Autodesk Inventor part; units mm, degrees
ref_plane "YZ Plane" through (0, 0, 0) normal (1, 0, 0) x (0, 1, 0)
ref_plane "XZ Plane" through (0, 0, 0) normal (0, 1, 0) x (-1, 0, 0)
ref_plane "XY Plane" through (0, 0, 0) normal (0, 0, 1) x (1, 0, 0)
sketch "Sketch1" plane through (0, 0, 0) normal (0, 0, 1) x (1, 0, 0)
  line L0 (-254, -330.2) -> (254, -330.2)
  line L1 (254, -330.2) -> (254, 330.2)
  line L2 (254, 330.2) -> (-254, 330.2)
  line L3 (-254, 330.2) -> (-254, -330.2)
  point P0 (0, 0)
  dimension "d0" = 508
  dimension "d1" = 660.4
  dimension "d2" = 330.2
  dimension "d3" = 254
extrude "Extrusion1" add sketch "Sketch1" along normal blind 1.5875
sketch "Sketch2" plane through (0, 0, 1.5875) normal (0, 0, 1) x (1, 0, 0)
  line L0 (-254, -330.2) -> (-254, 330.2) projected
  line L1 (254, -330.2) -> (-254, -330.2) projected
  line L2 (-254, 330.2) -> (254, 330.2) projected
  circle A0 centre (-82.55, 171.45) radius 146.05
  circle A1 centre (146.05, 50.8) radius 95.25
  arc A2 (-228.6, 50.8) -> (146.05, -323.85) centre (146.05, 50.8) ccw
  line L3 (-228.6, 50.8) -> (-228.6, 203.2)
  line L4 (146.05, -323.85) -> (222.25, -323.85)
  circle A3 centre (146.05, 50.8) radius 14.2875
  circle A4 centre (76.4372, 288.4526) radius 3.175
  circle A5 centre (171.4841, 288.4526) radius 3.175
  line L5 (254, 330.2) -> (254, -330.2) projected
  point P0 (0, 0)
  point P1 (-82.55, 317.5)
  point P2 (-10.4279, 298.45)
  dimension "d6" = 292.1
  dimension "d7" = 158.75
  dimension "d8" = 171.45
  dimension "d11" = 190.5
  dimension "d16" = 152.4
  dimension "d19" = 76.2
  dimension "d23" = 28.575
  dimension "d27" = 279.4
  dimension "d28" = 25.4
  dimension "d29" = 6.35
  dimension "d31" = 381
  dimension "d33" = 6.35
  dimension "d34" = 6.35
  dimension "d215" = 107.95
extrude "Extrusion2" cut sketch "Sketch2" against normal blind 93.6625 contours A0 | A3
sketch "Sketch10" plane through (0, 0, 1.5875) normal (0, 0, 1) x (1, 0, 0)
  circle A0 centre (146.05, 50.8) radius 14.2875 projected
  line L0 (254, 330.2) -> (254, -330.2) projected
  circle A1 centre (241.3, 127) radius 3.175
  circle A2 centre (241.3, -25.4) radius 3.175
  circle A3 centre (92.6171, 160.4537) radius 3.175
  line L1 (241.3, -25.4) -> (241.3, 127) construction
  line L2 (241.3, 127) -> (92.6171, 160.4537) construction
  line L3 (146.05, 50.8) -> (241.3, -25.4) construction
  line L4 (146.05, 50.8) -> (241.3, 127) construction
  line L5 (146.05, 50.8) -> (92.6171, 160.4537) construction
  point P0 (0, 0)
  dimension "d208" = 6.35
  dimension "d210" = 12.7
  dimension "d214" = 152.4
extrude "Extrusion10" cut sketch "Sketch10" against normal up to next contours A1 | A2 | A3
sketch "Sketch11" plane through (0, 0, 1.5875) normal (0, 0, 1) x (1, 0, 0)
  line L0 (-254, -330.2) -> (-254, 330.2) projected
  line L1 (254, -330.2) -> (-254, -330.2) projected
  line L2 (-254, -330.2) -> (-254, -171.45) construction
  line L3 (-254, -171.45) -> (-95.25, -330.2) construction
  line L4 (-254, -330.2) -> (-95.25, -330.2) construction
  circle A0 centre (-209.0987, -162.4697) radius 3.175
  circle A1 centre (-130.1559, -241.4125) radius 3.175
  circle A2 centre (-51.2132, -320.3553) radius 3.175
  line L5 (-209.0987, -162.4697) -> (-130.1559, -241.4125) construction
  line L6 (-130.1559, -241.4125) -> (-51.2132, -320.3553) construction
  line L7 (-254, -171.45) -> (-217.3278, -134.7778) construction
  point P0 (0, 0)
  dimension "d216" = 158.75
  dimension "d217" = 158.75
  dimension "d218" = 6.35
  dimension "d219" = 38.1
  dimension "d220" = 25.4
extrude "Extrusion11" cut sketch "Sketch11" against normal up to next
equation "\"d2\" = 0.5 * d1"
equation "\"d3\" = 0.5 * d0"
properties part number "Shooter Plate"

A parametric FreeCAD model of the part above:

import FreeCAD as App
import Part
import Sketcher
from FreeCAD import Vector
Q = App.Units.Quantity

doc = App.newDocument("Part")
params = doc.addObject("Spreadsheet::Sheet", "Params")
for row, (alias, value) in enumerate([
    ("sketch1_width", "20 in"),
    ("sketch1_height", "26 in"),
    ("pad1_length", "0.0625 in"),
    ("sketch2_diameter", "11.5 in"),
    ("sketch2_diameter2", "1.125 in"),
    ("pocket1_length", "3.6875 in"),
    ("sketch3_diameter", "0.25 in"),
    ("pocket2_length", "0.0625 in"),
    ("sketch4_diameter", "0.25 in"),
], start=1):
    params.set(f"A{row}", alias)
    params.set(f"B{row}", "=" + value)
    params.setAlias(f"B{row}", alias)

body = doc.addObject("PartDesign::Body", "Body")

sketch1 = body.newObject("Sketcher::SketchObject", "Sketch")
sketch1.AttachmentSupport = (doc.getObject("XY_Plane"), [""])
sketch1.MapMode = "FlatFace"
sketch1.addGeometry(Part.LineSegment(Vector(-254, 330.2, 0), Vector(-254, -330.2, 0)), False)
sketch1.addGeometry(Part.LineSegment(Vector(-254, -330.2, 0), Vector(254, -330.2, 0)), False)
sketch1.addGeometry(Part.LineSegment(Vector(254, -330.2, 0), Vector(254, 330.2, 0)), False)
sketch1.addGeometry(Part.LineSegment(Vector(254, 330.2, 0), Vector(-254, 330.2, 0)), False)
sketch1.addConstraint(Sketcher.Constraint("Coincident", 0, 2, 1, 1))
sketch1.addConstraint(Sketcher.Constraint("Coincident", 1, 2, 2, 1))
sketch1.addConstraint(Sketcher.Constraint("Coincident", 2, 2, 3, 1))
sketch1.addConstraint(Sketcher.Constraint("Coincident", 3, 2, 0, 1))
sketch1.addConstraint(Sketcher.Constraint("Vertical", 0))
sketch1.addConstraint(Sketcher.Constraint("Horizontal", 1))
sketch1.addConstraint(Sketcher.Constraint("Vertical", 2))
sketch1.addConstraint(Sketcher.Constraint("Horizontal", 3))
sketch1.addConstraint(Sketcher.Constraint("Symmetric", 0, 2, 2, 2, -1, 1))
sketch1.addConstraint(Sketcher.Constraint("DistanceX", 1, 1, 1, 2, Q("20 in")))
sketch1.addConstraint(Sketcher.Constraint("DistanceY", 0, 2, 0, 1, Q("26 in")))
sketch1.setExpression("Constraints[9]", "Params.sketch1_width")
sketch1.setExpression("Constraints[10]", "Params.sketch1_height")
pad1 = body.newObject("PartDesign::Pad", "Pad")
pad1.Profile = sketch1
pad1.setExpression("Length", "Params.pad1_length")

sketch2 = body.newObject("Sketcher::SketchObject", "Sketch001")
sketch2.AttachmentSupport = (doc.getObject("XY_Plane"), [""])
sketch2.MapMode = "FlatFace"
sketch2.AttachmentOffset = App.Placement(Vector(0, 0, 0.0625 * 25.4), App.Rotation())
sketch2.addGeometry(Part.Circle(Vector(-82.55, 171.45, 0), Vector(0, 0, 1), 146.05), False)
sketch2.addGeometry(Part.Circle(Vector(146.05, 50.8, 0), Vector(0, 0, 1), 14.2875), False)
sketch2.addConstraint(Sketcher.Constraint("Diameter", 0, Q("11.5 in")))
sketch2.addConstraint(Sketcher.Constraint("Diameter", 1, Q("1.125 in")))
sketch2.addConstraint(Sketcher.Constraint("DistanceY", -1, 1, 0, 3, Q("6.75 in")))
sketch2.addConstraint(Sketcher.Constraint("DistanceY", -1, 1, 1, 3, Q("2 in")))
sketch2.addConstraint(Sketcher.Constraint("DistanceX", 0, 3, 1, 3, Q("9 in")))
sketch2.addConstraint(Sketcher.Constraint("DistanceX", 0, 3, -1, 1, Q("3.25 in")))
sketch2.setExpression("Constraints[0]", "Params.sketch2_diameter")
sketch2.setExpression("Constraints[1]", "Params.sketch2_diameter2")
pocket1 = body.newObject("PartDesign::Pocket", "Pocket")
pocket1.Profile = sketch2
pocket1.setExpression("Length", "Params.pocket1_length")

sketch3 = body.newObject("Sketcher::SketchObject", "Sketch002")
sketch3.AttachmentSupport = (doc.getObject("XY_Plane"), [""])
sketch3.MapMode = "FlatFace"
sketch3.AttachmentOffset = App.Placement(Vector(0, 0, 0.0625 * 25.4), App.Rotation())
sketch3.addGeometry(Part.Circle(Vector(241.3, 127, 0), Vector(0, 0, 1), 3.175), False)
sketch3.addGeometry(Part.Circle(Vector(241.3, -25.4, 0), Vector(0, 0, 1), 3.175), False)
sketch3.addGeometry(Part.Circle(Vector(92.6171, 160.4537, 0), Vector(0, 0, 1), 3.175), False)
sketch3.addConstraint(Sketcher.Constraint("Equal", 0, 1))
sketch3.addConstraint(Sketcher.Constraint("Equal", 1, 2))
sketch3.addConstraint(Sketcher.Constraint("Vertical", 0, 3, 1, 3))
sketch3.addConstraint(Sketcher.Constraint("Diameter", 0, Q("0.25 in")))
sketch3.addConstraint(Sketcher.Constraint("DistanceY", 1, 3, 0, 3, Q("6 in")))
sketch3.addConstraint(Sketcher.Constraint("DistanceY", -1, 1, 0, 3, Q("5 in")))
sketch3.addConstraint(Sketcher.Constraint("DistanceX", -1, 1, 0, 3, Q("9.5 in")))
sketch3.addConstraint(Sketcher.Constraint("DistanceX", -1, 1, 2, 3, Q("92.617 mm")))
sketch3.addConstraint(Sketcher.Constraint("DistanceY", -1, 1, 2, 3, Q("160.4537 mm")))
sketch3.setExpression("Constraints[3]", "Params.sketch3_diameter")
pocket2 = body.newObject("PartDesign::Pocket", "Pocket001")
pocket2.Profile = sketch3
pocket2.setExpression("Length", "Params.pocket2_length")

sketch4 = body.newObject("Sketcher::SketchObject", "Sketch003")
sketch4.AttachmentSupport = (doc.getObject("XY_Plane"), [""])
sketch4.MapMode = "FlatFace"
sketch4.AttachmentOffset = App.Placement(Vector(0, 0, 0.0625 * 25.4), App.Rotation())
sketch4.addGeometry(Part.Circle(Vector(-209.0987, -162.4697, 0), Vector(0, 0, 1), 3.175), False)
sketch4.addGeometry(Part.Circle(Vector(-130.1559, -241.4125, 0), Vector(0, 0, 1), 3.175), False)
sketch4.addGeometry(Part.Circle(Vector(-51.2132, -320.3553, 0), Vector(0, 0, 1), 3.175), False)
sketch4.addConstraint(Sketcher.Constraint("Equal", 0, 1))
sketch4.addConstraint(Sketcher.Constraint("Equal", 1, 2))
sketch4.addConstraint(Sketcher.Constraint("Diameter", 0, Q("0.25 in")))
sketch4.addConstraint(Sketcher.Constraint("DistanceX", 0, 3, -1, 1, Q("209.0987 mm")))
sketch4.addConstraint(Sketcher.Constraint("DistanceY", 0, 3, -1, 1, Q("162.4697 mm")))
sketch4.addConstraint(Sketcher.Constraint("DistanceX", 1, 3, -1, 1, Q("130.156 mm")))
sketch4.addConstraint(Sketcher.Constraint("DistanceY", 1, 3, -1, 1, Q("241.4125 mm")))
sketch4.addConstraint(Sketcher.Constraint("DistanceX", 2, 3, -1, 1, Q("51.2132 mm")))
sketch4.addConstraint(Sketcher.Constraint("DistanceY", 2, 3, -1, 1, Q("320.3553 mm")))
sketch4.setExpression("Constraints[2]", "Params.sketch4_diameter")
pocket3 = body.newObject("PartDesign::Pocket", "Pocket002")
pocket3.Profile = sketch4
pocket3.Type = "UpToFirst"

doc.recompute()
